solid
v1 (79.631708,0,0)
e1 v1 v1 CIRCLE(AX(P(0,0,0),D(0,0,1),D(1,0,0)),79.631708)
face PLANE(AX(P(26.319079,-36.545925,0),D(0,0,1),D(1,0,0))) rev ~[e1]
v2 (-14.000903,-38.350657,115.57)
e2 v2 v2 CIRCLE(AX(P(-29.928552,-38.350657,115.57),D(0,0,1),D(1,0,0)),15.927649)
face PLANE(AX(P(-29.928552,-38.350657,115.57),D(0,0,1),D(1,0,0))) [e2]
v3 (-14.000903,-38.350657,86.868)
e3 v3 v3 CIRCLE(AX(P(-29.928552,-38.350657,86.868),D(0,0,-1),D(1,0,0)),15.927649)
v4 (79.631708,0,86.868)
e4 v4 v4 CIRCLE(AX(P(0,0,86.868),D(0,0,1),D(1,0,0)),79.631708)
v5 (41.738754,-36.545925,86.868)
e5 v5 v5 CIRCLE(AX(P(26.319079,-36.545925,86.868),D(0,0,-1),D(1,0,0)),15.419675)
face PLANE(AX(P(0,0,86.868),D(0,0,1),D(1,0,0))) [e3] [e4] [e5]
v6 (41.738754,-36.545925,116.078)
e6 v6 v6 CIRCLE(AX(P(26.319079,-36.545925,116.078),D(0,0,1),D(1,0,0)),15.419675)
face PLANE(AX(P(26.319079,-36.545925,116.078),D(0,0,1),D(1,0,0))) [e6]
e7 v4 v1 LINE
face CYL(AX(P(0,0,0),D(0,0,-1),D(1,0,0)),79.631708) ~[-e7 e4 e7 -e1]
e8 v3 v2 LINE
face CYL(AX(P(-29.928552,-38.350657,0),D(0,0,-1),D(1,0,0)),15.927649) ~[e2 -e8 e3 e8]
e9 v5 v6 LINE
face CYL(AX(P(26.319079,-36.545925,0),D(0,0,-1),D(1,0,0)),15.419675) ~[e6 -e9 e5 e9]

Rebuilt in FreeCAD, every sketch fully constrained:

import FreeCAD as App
import Part
import Sketcher
from FreeCAD import Vector
Q = App.Units.Quantity

doc = App.newDocument("Part")
body = doc.addObject("PartDesign::Body", "Body")

# Sketch on XY plane
sketch1 = body.newObject("Sketcher::SketchObject", "Sketch")
sketch1.AttachmentSupport = (doc.getObject("XY_Plane"), [""])
sketch1.MapMode = "FlatFace"
sketch1.addGeometry(Part.Circle(Vector(0, 0, 0), Vector(0, 0, 1), 80), False)
sketch1.addConstraint(Sketcher.Constraint("Coincident", 0, 3, -1, 1))
sketch1.addConstraint(Sketcher.Constraint("Diameter", 0, 159.263416))
pad1 = body.newObject("PartDesign::Pad", "Pad")
pad1.Profile = sketch1
pad1.Length = Q("3.42 in")

# Sketch on XY plane
sketch2 = body.newObject("Sketcher::SketchObject", "Sketch001")
sketch2.AttachmentSupport = (doc.getObject("XY_Plane"), [""])
sketch2.MapMode = "FlatFace"
sketch2.addGeometry(Part.Circle(Vector(-30, -38, 0), Vector(0, 0, 1), 16), False)
sketch2.addConstraint(Sketcher.Constraint("Diameter", 0, 31.855298))
sketch2.addConstraint(Sketcher.Constraint("DistanceX", 0, 3, -1, 1, 29.928552))
sketch2.addConstraint(Sketcher.Constraint("DistanceY", 0, 3, -1, 1, 38.350657))
pad2 = body.newObject("PartDesign::Pad", "Pad001")
pad2.Profile = sketch2
pad2.Length = Q("4.55 in")

# Sketch on XY plane
sketch3 = body.newObject("Sketcher::SketchObject", "Sketch002")
sketch3.AttachmentSupport = (doc.getObject("XY_Plane"), [""])
sketch3.MapMode = "FlatFace"
sketch3.addGeometry(Part.Circle(Vector(26, -37, 0), Vector(0, 0, 1), 15), False)
sketch3.addConstraint(Sketcher.Constraint("Diameter", 0, 30.83935))
sketch3.addConstraint(Sketcher.Constraint("DistanceX", -1, 1, 0, 3, 26.319079))
sketch3.addConstraint(Sketcher.Constraint("DistanceY", 0, 3, -1, 1, 36.545925))
pad3 = body.newObject("PartDesign::Pad", "Pad002")
pad3.Profile = sketch3
pad3.Length = Q("4.57 in")

# Sketch on XY plane
sketch4 = body.newObject("Sketcher::SketchObject", "Sketch003")
sketch4.AttachmentSupport = (doc.getObject("XY_Plane"), [""])
sketch4.MapMode = "FlatFace"
sketch4.addGeometry(Part.Circle(Vector(0, 0, 0), Vector(0, 0, 1), 80), False)
sketch4.addGeometry(Part.Circle(Vector(-30, -38, 0), Vector(0, 0, 1), 16), False)
sketch4.addGeometry(Part.Circle(Vector(26, -37, 0), Vector(0, 0, 1), 15), False)
sketch4.addConstraint(Sketcher.Constraint("Coincident", 0, 3, -1, 1))
sketch4.addConstraint(Sketcher.Constraint("Diameter", 1, 31.855298))
sketch4.addConstraint(Sketcher.Constraint("Diameter", 2, 30.83935))
sketch4.addConstraint(Sketcher.Constraint("Diameter", 0, 159.263416))
sketch4.addConstraint(Sketcher.Constraint("DistanceX", 1, 3, -1, 1, 29.928552))
sketch4.addConstraint(Sketcher.Constraint("DistanceX", -1, 1, 2, 3, 26.319079))
sketch4.addConstraint(Sketcher.Constraint("DistanceY", 1, 3, -1, 1, 38.350657))
sketch4.addConstraint(Sketcher.Constraint("DistanceY", 2, 3, -1, 1, 36.545925))
pad4 = body.newObject("PartDesign::Pad", "Pad003")
pad4.Profile = sketch4
pad4.Length = Q("1.84 in")

doc.recompute()
